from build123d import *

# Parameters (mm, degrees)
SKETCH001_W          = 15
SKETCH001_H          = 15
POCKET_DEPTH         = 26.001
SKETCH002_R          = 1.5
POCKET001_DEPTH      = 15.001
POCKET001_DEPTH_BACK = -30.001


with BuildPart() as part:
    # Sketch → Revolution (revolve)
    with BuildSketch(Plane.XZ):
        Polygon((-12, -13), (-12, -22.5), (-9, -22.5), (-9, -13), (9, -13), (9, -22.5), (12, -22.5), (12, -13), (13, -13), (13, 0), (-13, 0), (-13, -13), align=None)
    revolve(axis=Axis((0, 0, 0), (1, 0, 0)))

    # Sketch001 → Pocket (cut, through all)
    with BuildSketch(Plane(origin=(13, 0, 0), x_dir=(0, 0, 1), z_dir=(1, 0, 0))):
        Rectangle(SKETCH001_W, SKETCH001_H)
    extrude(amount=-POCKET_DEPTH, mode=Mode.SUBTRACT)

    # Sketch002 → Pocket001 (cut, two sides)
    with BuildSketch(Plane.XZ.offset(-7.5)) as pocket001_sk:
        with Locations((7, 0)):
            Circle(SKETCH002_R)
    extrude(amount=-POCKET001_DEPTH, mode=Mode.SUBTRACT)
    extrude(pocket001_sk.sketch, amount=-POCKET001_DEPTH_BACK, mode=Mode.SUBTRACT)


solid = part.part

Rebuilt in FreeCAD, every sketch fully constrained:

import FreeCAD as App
import Part
import Sketcher
Q = App.Units.Quantity

doc = App.newDocument("Part")
params = doc.addObject("Spreadsheet::Sheet", "Params")
for row, (alias, value) in enumerate([
    ("sketch1_width", "3 mm"),
    ("sketch1_width2", "18 mm"),
    ("sketch1_width3", "1 mm"),
    ("sketch1_height", "13 mm"),
    ("sketch1_height2", "9.5 mm"),
    ("revolution_angle", "360 deg"),
    ("sketch2_width", "15 mm"),
    ("sketch3_diameter", "3 mm"),
], start=1):
    params.set(f"A{row}", alias)
    params.set(f"B{row}", "=" + value)
    params.setAlias(f"B{row}", alias)

body = doc.addObject("PartDesign::Body", "Body")

sketch1 = body.newObject("Sketcher::SketchObject", "Sketch")
sketch1.AttachmentSupport = (doc.getObject("XZ_Plane"), [""])
sketch1.MapMode = "FlatFace"
sketch1.addGeometry([
    Part.LineSegment(App.Vector(-12, -13, 0), App.Vector(-12, -22.5, 0)),
    Part.LineSegment(App.Vector(-12, -22.5, 0), App.Vector(-9, -22.5, 0)),
    Part.LineSegment(App.Vector(-9, -22.5, 0), App.Vector(-9, -13, 0)),
    Part.LineSegment(App.Vector(-9, -13, 0), App.Vector(9, -13, 0)),
    Part.LineSegment(App.Vector(9, -13, 0), App.Vector(9, -22.5, 0)),
    Part.LineSegment(App.Vector(9, -22.5, 0), App.Vector(12, -22.5, 0)),
    Part.LineSegment(App.Vector(12, -22.5, 0), App.Vector(12, -13, 0)),
    Part.LineSegment(App.Vector(12, -13, 0), App.Vector(13, -13, 0)),
    Part.LineSegment(App.Vector(13, -13, 0), App.Vector(13, 0, 0)),
    Part.LineSegment(App.Vector(13, 0, 0), App.Vector(-13, 0, 0)),
    Part.LineSegment(App.Vector(-13, 0, 0), App.Vector(-13, -13, 0)),
    Part.LineSegment(App.Vector(-13, -13, 0), App.Vector(-12, -13, 0)),
], False)
sketch1.addConstraint([
    Sketcher.Constraint("Coincident", 0, 2, 1, 1),
    Sketcher.Constraint("Coincident", 1, 2, 2, 1),
    Sketcher.Constraint("Coincident", 2, 2, 3, 1),
    Sketcher.Constraint("Coincident", 3, 2, 4, 1),
    Sketcher.Constraint("Coincident", 4, 2, 5, 1),
    Sketcher.Constraint("Coincident", 5, 2, 6, 1),
    Sketcher.Constraint("Coincident", 6, 2, 7, 1),
    Sketcher.Constraint("Coincident", 7, 2, 8, 1),
    Sketcher.Constraint("Coincident", 8, 2, 9, 1),
    Sketcher.Constraint("Coincident", 9, 2, 10, 1),
    Sketcher.Constraint("Coincident", 10, 2, 11, 1),
    Sketcher.Constraint("Coincident", 11, 2, 0, 1),
    Sketcher.Constraint("Vertical", 0),
    Sketcher.Constraint("Horizontal", 1),
    Sketcher.Constraint("Vertical", 2),
    Sketcher.Constraint("Horizontal", 3),
    Sketcher.Constraint("Vertical", 4),
    Sketcher.Constraint("Horizontal", 5),
    Sketcher.Constraint("Vertical", 6),
    Sketcher.Constraint("Horizontal", 7),
    Sketcher.Constraint("Vertical", 8),
    Sketcher.Constraint("Horizontal", 9),
    Sketcher.Constraint("Vertical", 10),
    Sketcher.Constraint("Horizontal", 11),
    Sketcher.Constraint("Symmetric", 8, 2, 9, 2, -1, 1),
    Sketcher.Constraint("Symmetric", 1, 2, 4, 2, -2),
    Sketcher.Constraint("Symmetric", 6, 2, 11, 2, -2),
    Sketcher.Constraint("Horizontal", 3, 2, 6, 2),
    Sketcher.Constraint("DistanceX", 1, 1, 1, 2, Q("3 mm")),
    Sketcher.Constraint("DistanceX", 3, 1, 3, 2, Q("18 mm")),
    Sketcher.Constraint("DistanceX", 7, 1, 7, 2, Q("1 mm")),
    Sketcher.Constraint("DistanceY", 8, 1, 8, 2, Q("13 mm")),
    Sketcher.Constraint("DistanceY", 0, 2, 0, 1, Q("9.5 mm")),
])
sketch1.setExpression("Constraints[28]", "Params.sketch1_width")
sketch1.setExpression("Constraints[29]", "Params.sketch1_width2")
sketch1.setExpression("Constraints[30]", "Params.sketch1_width3")
sketch1.setExpression("Constraints[31]", "Params.sketch1_height")
sketch1.setExpression("Constraints[32]", "Params.sketch1_height2")
revolution = body.newObject("PartDesign::Revolution", "Revolution")
revolution.Profile = sketch1
revolution.ReferenceAxis = (sketch1, ["H_Axis"])
revolution.setExpression("Angle", "Params.revolution_angle")

sketch2 = body.newObject("Sketcher::SketchObject", "Sketch001")
sketch2.AttachmentSupport = (doc.getObject("YZ_Plane"), [""])
sketch2.MapMode = "FlatFace"
sketch2.AttachmentOffset = App.Placement(App.Vector(0, 0, 13), App.Rotation())
sketch2.addGeometry([
    Part.LineSegment(App.Vector(-7.5, -7.5, 0), App.Vector(7.5, -7.5, 0)),
    Part.LineSegment(App.Vector(7.5, -7.5, 0), App.Vector(7.5, 7.5, 0)),
    Part.LineSegment(App.Vector(7.5, 7.5, 0), App.Vector(-7.5, 7.5, 0)),
    Part.LineSegment(App.Vector(-7.5, 7.5, 0), App.Vector(-7.5, -7.5, 0)),
], False)
sketch2.addConstraint([
    Sketcher.Constraint("Coincident", 0, 2, 1, 1),
    Sketcher.Constraint("Coincident", 1, 2, 2, 1),
    Sketcher.Constraint("Coincident", 2, 2, 3, 1),
    Sketcher.Constraint("Coincident", 3, 2, 0, 1),
    Sketcher.Constraint("Horizontal", 0),
    Sketcher.Constraint("Vertical", 1),
    Sketcher.Constraint("Horizontal", 2),
    Sketcher.Constraint("Vertical", 3),
    Sketcher.Constraint("Symmetric", 0, 2, 2, 2, -1, 1),
    Sketcher.Constraint("Equal", 2, 1),
    Sketcher.Constraint("DistanceX", 0, 1, 0, 2, Q("15 mm")),
])
sketch2.setExpression("Constraints[10]", "Params.sketch2_width")
pocket1 = body.newObject("PartDesign::Pocket", "Pocket")
pocket1.Profile = sketch2
pocket1.Type = "ThroughAll"

sketch3 = body.newObject("Sketcher::SketchObject", "Sketch002")
sketch3.AttachmentSupport = (doc.getObject("XZ_Plane"), [""])
sketch3.MapMode = "FlatFace"
sketch3.AttachmentOffset = App.Placement(App.Vector(0, 0, -7.5), App.Rotation())
sketch3.addGeometry(Part.Circle(App.Vector(7, 0, 0), App.Vector(0, 0, 1), 1.5), False)
sketch3.addConstraint([
    Sketcher.Constraint("PointOnObject", 0, 3, -1),
    Sketcher.Constraint("Diameter", 0, Q("3 mm")),
    Sketcher.Constraint("DistanceX", -1, 1, 0, 3, Q("7 mm")),
])
sketch3.setExpression("Constraints[1]", "Params.sketch3_diameter")
pocket2 = body.newObject("PartDesign::Pocket", "Pocket001")
pocket2.Profile = sketch3
pocket2.Type = "ThroughAll"
pocket2.Midplane = True

doc.recompute()
